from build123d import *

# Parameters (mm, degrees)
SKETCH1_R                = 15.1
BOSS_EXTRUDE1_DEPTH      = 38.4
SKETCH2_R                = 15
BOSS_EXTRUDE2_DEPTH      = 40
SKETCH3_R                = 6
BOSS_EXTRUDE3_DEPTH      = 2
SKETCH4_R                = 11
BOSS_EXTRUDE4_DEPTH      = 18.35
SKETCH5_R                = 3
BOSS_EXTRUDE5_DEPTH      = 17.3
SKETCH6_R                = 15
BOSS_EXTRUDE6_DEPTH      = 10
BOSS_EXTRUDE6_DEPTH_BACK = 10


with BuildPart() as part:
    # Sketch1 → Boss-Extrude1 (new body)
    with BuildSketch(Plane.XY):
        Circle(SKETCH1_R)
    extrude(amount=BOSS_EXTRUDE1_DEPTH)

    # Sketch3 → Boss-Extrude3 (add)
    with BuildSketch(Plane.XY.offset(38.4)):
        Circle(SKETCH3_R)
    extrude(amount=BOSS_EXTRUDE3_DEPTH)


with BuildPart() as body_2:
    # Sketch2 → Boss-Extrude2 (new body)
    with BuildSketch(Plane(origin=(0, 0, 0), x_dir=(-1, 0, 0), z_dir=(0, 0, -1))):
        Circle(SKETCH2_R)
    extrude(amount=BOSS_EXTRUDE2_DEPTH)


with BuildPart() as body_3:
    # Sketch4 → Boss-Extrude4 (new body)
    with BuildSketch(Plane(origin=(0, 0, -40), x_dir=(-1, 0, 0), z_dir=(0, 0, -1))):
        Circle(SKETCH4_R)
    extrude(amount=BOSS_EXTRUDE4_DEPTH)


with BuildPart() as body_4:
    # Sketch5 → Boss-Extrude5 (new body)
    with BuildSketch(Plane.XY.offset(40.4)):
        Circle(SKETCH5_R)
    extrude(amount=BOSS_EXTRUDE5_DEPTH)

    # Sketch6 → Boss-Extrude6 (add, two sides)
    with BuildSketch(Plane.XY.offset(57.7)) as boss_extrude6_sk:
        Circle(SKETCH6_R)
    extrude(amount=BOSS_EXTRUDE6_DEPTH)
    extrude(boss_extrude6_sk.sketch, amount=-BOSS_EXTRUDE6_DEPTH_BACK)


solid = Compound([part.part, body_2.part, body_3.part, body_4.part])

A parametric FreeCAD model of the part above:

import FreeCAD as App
import Part
import Sketcher
Q = App.Units.Quantity

doc = App.newDocument("Part")
body = doc.addObject("PartDesign::Body", "Body")

# Sketch on XY plane
sketch1 = body.newObject("Sketcher::SketchObject", "Sketch")
sketch1.AttachmentSupport = (doc.getObject("XY_Plane"), [""])
sketch1.MapMode = "FlatFace"
sketch1.addGeometry(Part.Circle(App.Vector(0, 0, 0), App.Vector(0, 0, 1), 15.1), False)
sketch1.addConstraint([
    Sketcher.Constraint("Coincident", 0, 3, -1, 1),
    Sketcher.Constraint("Diameter", 0, Q("30.2 mm")),
])
pad1 = body.newObject("PartDesign::Pad", "Pad")
pad1.Profile = sketch1
pad1.Length = 38.4

# Sketch on XY plane
sketch2 = body.newObject("Sketcher::SketchObject", "Sketch001")
sketch2.AttachmentSupport = (doc.getObject("XY_Plane"), [""])
sketch2.MapMode = "FlatFace"
sketch2.AttachmentOffset = App.Placement(App.Vector(0, 0, 38.4), App.Rotation())
sketch2.addGeometry(Part.Circle(App.Vector(0, 0, 0), App.Vector(0, 0, 1), 6), False)
sketch2.addConstraint([
    Sketcher.Constraint("Coincident", 0, 3, -1, 1),
    Sketcher.Constraint("Diameter", 0, Q("12 mm")),
])
pad2 = body.newObject("PartDesign::Pad", "Pad001")
pad2.Profile = sketch2
pad2.Length = 2
body2 = doc.addObject("PartDesign::Body", "Body001")

# Sketch on XY plane
sketch3 = body2.newObject("Sketcher::SketchObject", "Sketch002")
sketch3.AttachmentSupport = (doc.getObject("XY_Plane001"), [""])
sketch3.MapMode = "FlatFace"
sketch3.addGeometry(Part.Circle(App.Vector(0, 0, 0), App.Vector(0, 0, 1), 15), False)
sketch3.addConstraint([
    Sketcher.Constraint("Coincident", 0, 3, -1, 1),
    Sketcher.Constraint("Diameter", 0, Q("30 mm")),
])
pad3 = body2.newObject("PartDesign::Pad", "Pad002")
pad3.Profile = sketch3
pad3.Length = 40
pad3.Reversed = True
body3 = doc.addObject("PartDesign::Body", "Body002")

# Sketch on XY plane
sketch4 = body3.newObject("Sketcher::SketchObject", "Sketch003")
sketch4.AttachmentSupport = (doc.getObject("XY_Plane002"), [""])
sketch4.MapMode = "FlatFace"
sketch4.AttachmentOffset = App.Placement(App.Vector(0, 0, -40), App.Rotation())
sketch4.addGeometry(Part.Circle(App.Vector(0, 0, 0), App.Vector(0, 0, 1), 11), False)
sketch4.addConstraint([
    Sketcher.Constraint("Coincident", 0, 3, -1, 1),
    Sketcher.Constraint("Diameter", 0, Q("22 mm")),
])
pad4 = body3.newObject("PartDesign::Pad", "Pad003")
pad4.Profile = sketch4
pad4.Length = 18.35
pad4.Reversed = True
body4 = doc.addObject("PartDesign::Body", "Body003")

# Sketch on XY plane
sketch5 = body4.newObject("Sketcher::SketchObject", "Sketch004")
sketch5.AttachmentSupport = (doc.getObject("XY_Plane003"), [""])
sketch5.MapMode = "FlatFace"
sketch5.AttachmentOffset = App.Placement(App.Vector(0, 0, 40.4), App.Rotation())
sketch5.addGeometry(Part.Circle(App.Vector(0, 0, 0), App.Vector(0, 0, 1), 3), False)
sketch5.addConstraint([
    Sketcher.Constraint("Coincident", 0, 3, -1, 1),
    Sketcher.Constraint("Diameter", 0, Q("6 mm")),
])
pad5 = body4.newObject("PartDesign::Pad", "Pad004")
pad5.Profile = sketch5
pad5.Length = 17.3

# Sketch on XY plane
sketch6 = body4.newObject("Sketcher::SketchObject", "Sketch005")
sketch6.AttachmentSupport = (doc.getObject("XY_Plane003"), [""])
sketch6.MapMode = "FlatFace"
sketch6.AttachmentOffset = App.Placement(App.Vector(0, 0, 57.7), App.Rotation())
sketch6.addGeometry(Part.Circle(App.Vector(0, 0, 0), App.Vector(0, 0, 1), 15), False)
sketch6.addConstraint([
    Sketcher.Constraint("Coincident", 0, 3, -1, 1),
    Sketcher.Constraint("Diameter", 0, Q("30 mm")),
])
pad6 = body4.newObject("PartDesign::Pad", "Pad005")
pad6.Profile = sketch6
pad6.Type = "TwoLengths"
pad6.Length = 10
pad6.Length2 = 10

doc.recompute()
